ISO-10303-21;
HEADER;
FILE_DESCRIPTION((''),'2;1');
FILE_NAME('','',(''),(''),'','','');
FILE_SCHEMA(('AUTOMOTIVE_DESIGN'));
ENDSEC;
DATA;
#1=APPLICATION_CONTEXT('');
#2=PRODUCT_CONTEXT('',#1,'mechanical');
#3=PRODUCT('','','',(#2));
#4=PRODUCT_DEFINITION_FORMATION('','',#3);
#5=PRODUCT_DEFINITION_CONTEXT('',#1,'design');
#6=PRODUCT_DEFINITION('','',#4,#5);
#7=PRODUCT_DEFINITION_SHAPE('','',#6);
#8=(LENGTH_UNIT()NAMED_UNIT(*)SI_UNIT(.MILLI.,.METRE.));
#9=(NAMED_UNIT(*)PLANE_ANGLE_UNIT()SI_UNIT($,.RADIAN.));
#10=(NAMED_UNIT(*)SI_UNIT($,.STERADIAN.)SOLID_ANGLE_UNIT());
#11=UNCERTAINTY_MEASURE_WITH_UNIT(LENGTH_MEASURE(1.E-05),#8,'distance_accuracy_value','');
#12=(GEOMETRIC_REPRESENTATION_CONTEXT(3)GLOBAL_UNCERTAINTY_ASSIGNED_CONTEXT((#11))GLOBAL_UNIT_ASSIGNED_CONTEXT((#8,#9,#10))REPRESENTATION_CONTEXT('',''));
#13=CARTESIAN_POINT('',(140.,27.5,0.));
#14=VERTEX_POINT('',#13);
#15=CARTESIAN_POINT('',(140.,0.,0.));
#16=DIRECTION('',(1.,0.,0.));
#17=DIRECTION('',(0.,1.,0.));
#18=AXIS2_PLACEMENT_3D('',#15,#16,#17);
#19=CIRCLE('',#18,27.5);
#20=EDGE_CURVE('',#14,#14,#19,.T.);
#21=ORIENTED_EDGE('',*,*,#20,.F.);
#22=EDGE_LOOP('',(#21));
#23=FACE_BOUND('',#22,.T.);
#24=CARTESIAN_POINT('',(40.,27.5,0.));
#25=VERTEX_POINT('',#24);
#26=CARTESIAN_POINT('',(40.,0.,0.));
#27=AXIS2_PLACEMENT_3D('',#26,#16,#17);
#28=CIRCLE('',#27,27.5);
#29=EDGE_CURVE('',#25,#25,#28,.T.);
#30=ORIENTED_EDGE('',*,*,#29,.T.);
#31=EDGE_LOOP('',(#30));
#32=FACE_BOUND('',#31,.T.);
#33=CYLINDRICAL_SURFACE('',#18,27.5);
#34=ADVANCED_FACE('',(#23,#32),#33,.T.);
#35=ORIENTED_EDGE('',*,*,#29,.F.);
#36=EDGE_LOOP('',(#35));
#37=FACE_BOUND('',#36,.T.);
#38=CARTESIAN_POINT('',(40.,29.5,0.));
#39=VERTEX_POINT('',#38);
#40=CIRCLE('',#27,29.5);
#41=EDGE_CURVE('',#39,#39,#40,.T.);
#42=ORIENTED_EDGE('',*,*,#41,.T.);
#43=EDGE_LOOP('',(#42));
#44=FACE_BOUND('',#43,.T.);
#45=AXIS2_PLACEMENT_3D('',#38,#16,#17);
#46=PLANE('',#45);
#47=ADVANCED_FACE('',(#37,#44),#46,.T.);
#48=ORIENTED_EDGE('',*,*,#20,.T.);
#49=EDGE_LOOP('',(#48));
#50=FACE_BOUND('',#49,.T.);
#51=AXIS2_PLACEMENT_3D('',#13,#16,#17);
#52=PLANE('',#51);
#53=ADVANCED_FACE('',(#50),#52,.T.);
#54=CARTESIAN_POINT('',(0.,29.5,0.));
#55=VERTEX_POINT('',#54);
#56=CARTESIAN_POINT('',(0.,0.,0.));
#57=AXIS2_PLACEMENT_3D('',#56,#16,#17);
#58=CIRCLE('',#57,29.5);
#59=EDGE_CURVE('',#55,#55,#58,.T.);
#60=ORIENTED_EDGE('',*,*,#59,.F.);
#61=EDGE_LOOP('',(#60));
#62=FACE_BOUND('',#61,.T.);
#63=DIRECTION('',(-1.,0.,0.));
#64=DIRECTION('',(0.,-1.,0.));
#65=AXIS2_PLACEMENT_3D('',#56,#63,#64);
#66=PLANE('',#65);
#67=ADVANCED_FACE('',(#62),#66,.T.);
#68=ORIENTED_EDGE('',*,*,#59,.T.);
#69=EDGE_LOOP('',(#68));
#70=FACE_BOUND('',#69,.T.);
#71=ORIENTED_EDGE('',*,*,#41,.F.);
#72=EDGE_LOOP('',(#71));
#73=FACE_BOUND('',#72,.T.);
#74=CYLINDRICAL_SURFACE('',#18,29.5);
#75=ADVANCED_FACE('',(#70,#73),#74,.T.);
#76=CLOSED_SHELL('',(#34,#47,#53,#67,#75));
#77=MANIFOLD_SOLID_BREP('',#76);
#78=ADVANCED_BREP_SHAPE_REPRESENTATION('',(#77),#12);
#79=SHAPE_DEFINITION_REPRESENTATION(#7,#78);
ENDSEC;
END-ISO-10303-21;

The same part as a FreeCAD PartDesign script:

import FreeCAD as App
import Part
import Sketcher

V = App.Vector
Q = App.Units.Quantity

doc = App.newDocument("Part")
body = doc.addObject("PartDesign::Body", "Body")

sketch1 = body.newObject("Sketcher::SketchObject", "Sketch")
sketch1.AttachmentSupport = (doc.getObject("XY_Plane"), [""])
sketch1.MapMode = "FlatFace"
sketch1.addGeometry([
    Part.LineSegment(V(0, 29.5, 0), V(0, 0, 0)),
    Part.LineSegment(V(0, 0, 0), V(140, 0, 0)),
    Part.LineSegment(V(140, 0, 0), V(140, 27.5, 0)),
    Part.LineSegment(V(140, 27.5, 0), V(40, 27.5, 0)),
    Part.LineSegment(V(40, 27.5, 0), V(40, 29.5, 0)),
    Part.LineSegment(V(40, 29.5, 0), V(0, 29.5, 0)),
], False)
sketch1.addConstraint([
    Sketcher.Constraint("Coincident", 0, 2, 1, 1),
    Sketcher.Constraint("Coincident", 1, 2, 2, 1),
    Sketcher.Constraint("Coincident", 2, 2, 3, 1),
    Sketcher.Constraint("Coincident", 3, 2, 4, 1),
    Sketcher.Constraint("Coincident", 4, 2, 5, 1),
    Sketcher.Constraint("Coincident", 5, 2, 0, 1),
    Sketcher.Constraint("Vertical", 0),
    Sketcher.Constraint("Horizontal", 1),
    Sketcher.Constraint("Vertical", 2),
    Sketcher.Constraint("Horizontal", 3),
    Sketcher.Constraint("Vertical", 4),
    Sketcher.Constraint("Horizontal", 5),
    Sketcher.Constraint("Coincident", 0, 2, -1, 1),
    Sketcher.Constraint("DistanceX", 1, 1, 1, 2, Q("140 mm")),
    Sketcher.Constraint("DistanceX", 3, 2, 3, 1, Q("100 mm")),
    Sketcher.Constraint("DistanceY", 4, 1, 4, 2, Q("2 mm")),
    Sketcher.Constraint("DistanceY", 0, 2, 0, 1, Q("29.5 mm")),
])
revolution = body.newObject("PartDesign::Revolution", "Revolution")
revolution.Profile = sketch1
revolution.ReferenceAxis = (sketch1, ["H_Axis"])
revolution.Angle = 360

doc.recompute()
